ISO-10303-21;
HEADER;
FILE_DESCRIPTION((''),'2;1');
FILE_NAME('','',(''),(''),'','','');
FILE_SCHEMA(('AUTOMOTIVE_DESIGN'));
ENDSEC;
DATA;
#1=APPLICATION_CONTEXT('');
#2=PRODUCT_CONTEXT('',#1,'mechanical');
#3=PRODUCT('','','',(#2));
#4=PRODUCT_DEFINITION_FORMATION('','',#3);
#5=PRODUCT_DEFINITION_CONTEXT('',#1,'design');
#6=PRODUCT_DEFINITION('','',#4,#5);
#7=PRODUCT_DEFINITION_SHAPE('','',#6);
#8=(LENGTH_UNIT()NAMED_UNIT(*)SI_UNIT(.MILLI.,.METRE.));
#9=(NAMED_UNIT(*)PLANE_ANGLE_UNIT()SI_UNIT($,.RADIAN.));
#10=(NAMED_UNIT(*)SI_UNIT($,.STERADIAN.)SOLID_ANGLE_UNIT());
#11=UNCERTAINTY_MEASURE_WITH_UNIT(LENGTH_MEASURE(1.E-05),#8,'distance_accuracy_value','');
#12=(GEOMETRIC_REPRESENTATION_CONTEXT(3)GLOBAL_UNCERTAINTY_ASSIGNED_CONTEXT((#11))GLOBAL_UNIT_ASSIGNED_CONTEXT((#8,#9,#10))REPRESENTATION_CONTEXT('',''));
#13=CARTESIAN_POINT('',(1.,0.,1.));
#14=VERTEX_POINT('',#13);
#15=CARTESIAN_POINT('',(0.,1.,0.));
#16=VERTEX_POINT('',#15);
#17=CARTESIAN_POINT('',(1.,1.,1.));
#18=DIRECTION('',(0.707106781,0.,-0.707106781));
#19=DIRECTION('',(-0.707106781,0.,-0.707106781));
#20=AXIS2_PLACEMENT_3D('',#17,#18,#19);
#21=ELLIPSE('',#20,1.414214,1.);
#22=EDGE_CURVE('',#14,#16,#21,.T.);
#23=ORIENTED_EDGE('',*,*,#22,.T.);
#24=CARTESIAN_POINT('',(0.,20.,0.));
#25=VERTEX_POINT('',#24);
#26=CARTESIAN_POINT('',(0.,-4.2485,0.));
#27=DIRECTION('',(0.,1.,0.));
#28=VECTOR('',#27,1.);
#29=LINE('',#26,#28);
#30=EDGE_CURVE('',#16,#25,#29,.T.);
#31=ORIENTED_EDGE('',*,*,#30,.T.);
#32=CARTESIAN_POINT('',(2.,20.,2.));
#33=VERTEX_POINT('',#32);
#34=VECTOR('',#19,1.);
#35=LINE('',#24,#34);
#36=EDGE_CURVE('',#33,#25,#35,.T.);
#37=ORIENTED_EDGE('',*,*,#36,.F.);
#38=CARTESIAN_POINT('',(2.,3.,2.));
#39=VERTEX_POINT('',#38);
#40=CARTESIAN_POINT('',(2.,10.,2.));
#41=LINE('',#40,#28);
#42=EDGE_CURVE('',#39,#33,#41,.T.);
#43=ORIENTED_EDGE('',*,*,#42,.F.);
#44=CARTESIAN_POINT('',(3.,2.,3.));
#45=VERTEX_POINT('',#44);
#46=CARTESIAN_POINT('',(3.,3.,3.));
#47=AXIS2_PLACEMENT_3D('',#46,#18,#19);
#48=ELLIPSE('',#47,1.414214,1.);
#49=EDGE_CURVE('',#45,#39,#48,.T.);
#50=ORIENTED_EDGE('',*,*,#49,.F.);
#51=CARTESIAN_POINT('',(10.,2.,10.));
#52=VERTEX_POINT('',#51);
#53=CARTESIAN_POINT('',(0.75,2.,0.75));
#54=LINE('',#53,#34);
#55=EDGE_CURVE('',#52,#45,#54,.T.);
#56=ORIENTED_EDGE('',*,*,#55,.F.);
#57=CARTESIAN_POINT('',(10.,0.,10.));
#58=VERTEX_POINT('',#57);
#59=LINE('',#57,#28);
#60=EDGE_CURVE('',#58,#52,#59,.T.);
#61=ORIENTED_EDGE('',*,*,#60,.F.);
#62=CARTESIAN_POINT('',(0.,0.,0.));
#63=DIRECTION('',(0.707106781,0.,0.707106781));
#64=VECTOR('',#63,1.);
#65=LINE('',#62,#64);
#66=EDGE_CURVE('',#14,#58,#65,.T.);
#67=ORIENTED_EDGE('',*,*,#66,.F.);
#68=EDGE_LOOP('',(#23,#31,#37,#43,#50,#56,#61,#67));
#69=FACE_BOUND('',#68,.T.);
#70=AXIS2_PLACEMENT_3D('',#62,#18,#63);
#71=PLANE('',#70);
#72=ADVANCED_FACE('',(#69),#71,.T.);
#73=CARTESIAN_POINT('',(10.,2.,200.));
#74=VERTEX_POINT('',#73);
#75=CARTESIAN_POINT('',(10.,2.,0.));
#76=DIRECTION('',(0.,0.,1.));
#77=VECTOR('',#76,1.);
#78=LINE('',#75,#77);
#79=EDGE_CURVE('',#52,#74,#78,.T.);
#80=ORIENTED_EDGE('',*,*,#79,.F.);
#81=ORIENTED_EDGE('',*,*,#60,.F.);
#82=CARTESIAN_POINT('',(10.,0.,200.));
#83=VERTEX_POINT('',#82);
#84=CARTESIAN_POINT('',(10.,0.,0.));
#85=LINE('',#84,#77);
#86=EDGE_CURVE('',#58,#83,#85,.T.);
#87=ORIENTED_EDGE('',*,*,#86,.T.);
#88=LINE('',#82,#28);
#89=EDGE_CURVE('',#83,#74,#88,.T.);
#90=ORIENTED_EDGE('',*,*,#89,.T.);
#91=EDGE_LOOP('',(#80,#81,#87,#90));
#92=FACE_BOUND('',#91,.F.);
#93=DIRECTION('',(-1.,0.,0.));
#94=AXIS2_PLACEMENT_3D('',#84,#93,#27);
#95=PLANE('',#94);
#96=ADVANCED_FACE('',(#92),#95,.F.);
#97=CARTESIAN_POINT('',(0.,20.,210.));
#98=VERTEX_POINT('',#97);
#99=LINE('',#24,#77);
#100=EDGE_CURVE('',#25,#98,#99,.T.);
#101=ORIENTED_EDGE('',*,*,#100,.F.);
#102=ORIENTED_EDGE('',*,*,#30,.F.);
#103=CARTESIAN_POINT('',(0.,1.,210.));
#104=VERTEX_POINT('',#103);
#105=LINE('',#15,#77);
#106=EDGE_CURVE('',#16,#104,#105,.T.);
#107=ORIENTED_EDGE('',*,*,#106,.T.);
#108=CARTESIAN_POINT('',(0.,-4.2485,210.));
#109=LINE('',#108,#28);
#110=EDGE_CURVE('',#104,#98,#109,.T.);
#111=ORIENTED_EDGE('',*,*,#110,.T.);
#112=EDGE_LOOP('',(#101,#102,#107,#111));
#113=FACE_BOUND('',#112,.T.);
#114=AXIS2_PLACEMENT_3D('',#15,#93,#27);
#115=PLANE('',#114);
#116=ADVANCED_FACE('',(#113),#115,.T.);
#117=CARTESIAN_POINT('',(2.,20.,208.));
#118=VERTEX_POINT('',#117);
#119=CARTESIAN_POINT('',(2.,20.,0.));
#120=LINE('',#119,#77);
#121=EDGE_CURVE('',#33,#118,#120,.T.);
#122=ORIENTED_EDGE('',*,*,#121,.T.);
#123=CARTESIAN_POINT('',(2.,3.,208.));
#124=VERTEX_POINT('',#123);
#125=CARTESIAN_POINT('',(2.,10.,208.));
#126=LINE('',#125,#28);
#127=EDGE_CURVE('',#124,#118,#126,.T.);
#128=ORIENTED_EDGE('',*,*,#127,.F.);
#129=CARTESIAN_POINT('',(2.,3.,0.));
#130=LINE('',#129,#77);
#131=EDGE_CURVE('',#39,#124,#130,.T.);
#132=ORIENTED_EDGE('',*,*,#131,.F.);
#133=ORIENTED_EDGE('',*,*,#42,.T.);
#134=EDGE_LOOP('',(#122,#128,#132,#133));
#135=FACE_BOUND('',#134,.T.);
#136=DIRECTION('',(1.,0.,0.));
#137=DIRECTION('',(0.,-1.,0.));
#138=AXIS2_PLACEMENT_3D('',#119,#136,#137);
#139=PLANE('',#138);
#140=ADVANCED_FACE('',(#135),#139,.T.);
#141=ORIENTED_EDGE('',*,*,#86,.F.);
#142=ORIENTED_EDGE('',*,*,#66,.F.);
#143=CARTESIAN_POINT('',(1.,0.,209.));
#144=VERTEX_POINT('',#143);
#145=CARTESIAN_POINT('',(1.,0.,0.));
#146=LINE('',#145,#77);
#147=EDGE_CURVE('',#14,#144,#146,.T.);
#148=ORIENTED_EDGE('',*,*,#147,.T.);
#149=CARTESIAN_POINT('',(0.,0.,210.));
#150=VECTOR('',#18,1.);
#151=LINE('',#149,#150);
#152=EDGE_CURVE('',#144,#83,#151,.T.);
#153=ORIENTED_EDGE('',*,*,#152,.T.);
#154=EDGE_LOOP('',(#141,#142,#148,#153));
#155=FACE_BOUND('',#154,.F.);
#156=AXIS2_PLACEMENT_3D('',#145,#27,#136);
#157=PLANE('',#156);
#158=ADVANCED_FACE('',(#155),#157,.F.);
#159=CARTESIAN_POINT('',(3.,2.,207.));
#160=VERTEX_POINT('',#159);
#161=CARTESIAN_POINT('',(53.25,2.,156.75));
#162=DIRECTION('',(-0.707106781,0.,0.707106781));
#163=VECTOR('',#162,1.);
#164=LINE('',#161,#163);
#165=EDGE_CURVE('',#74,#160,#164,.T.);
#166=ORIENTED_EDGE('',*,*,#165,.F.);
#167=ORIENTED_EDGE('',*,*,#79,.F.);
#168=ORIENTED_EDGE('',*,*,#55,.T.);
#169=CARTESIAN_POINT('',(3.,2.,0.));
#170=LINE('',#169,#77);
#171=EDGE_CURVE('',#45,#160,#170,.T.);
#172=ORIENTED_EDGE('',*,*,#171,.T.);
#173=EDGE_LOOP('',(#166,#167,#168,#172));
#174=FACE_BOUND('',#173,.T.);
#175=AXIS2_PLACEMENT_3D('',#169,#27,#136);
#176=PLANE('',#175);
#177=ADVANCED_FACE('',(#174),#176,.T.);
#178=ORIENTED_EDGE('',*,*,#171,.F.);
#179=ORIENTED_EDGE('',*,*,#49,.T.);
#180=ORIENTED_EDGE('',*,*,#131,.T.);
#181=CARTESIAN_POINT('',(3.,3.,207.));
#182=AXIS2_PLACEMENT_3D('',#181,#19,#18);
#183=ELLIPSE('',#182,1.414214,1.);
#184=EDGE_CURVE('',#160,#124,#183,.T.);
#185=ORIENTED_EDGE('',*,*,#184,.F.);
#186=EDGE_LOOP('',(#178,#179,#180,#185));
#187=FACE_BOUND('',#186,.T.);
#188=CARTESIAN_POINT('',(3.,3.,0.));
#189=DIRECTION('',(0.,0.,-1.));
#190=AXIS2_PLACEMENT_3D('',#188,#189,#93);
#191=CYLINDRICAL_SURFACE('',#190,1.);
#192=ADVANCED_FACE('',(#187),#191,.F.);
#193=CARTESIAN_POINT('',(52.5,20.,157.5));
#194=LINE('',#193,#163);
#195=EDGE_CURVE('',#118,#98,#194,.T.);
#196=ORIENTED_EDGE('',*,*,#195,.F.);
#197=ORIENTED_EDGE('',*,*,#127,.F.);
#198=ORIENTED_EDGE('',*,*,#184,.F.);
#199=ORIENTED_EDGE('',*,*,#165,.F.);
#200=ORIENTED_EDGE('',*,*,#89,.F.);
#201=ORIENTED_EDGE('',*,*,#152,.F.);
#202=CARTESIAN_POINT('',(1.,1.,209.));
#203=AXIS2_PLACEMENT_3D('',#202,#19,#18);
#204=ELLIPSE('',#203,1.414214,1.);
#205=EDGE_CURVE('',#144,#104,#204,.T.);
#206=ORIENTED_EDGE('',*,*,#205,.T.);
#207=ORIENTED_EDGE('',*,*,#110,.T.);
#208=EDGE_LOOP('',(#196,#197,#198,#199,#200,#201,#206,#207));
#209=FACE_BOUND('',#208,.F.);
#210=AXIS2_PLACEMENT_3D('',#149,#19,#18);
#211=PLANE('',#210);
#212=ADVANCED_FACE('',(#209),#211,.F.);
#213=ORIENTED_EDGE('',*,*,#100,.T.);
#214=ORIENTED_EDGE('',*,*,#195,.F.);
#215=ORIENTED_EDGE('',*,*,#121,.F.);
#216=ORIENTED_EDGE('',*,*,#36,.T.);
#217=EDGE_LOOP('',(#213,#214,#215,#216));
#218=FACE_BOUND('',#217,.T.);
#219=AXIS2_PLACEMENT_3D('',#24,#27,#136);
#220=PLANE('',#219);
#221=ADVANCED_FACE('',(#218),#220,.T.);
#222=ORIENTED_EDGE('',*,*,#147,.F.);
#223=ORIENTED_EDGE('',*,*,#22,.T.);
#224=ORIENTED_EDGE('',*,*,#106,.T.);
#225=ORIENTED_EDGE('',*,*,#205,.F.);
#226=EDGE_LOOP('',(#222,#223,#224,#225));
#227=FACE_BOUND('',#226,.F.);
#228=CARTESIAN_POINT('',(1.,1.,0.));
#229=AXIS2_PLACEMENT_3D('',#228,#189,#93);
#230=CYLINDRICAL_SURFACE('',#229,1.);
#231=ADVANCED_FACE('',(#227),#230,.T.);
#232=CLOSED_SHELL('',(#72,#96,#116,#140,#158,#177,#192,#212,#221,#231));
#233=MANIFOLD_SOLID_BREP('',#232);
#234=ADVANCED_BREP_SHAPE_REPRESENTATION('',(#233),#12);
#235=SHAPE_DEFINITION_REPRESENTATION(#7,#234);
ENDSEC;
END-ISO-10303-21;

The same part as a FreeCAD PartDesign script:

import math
import FreeCAD as App
import Part
import Sketcher

V = App.Vector


def add_polygon(sketch, points):
    """Adds a closed chain of lines whose ends are joined by coincident constraints."""
    first, n = sketch.GeometryCount, len(points)
    for a, b in zip(points, points[1:] + points[:1]):
        sketch.addGeometry(Part.LineSegment(App.Vector(*a, 0), App.Vector(*b, 0)), False)
    for i in range(n):
        sketch.addConstraint(Sketcher.Constraint("Coincident", first + i, 2, first + (i + 1) % n, 1))

doc = App.newDocument("Part")
body = doc.addObject("PartDesign::Body", "Body")

sketch1 = body.newObject("Sketcher::SketchObject", "Sketch")
sketch1.AttachmentSupport = (doc.getObject("XY_Plane"), [""])
sketch1.MapMode = "FlatFace"
sketch1.addGeometry([
    Part.ArcOfCircle(Part.Circle(V(1, 1, 0), V(0, 0, 1), 1), math.radians(180), math.radians(270)),
    Part.LineSegment(V(1, 0, 0), V(10, 0, 0)),
    Part.LineSegment(V(10, 0, 0), V(10, 2, 0)),
    Part.LineSegment(V(10, 2, 0), V(3, 2, 0)),
    Part.ArcOfCircle(Part.Circle(V(3, 3, 0), V(0, 0, 1), 1), math.radians(180), math.radians(270)),
    Part.LineSegment(V(2, 3, 0), V(2, 20, 0)),
    Part.LineSegment(V(2, 20, 0), V(0, 20, 0)),
    Part.LineSegment(V(0, 20, 0), V(0, 1, 0)),
], False)
sketch1.addConstraint([
    Sketcher.Constraint("Tangent", 0, 2, 1, 1),
    Sketcher.Constraint("Coincident", 1, 2, 2, 1),
    Sketcher.Constraint("Coincident", 2, 2, 3, 1),
    Sketcher.Constraint("Tangent", 3, 2, 4, 2),
    Sketcher.Constraint("Tangent", 4, 1, 5, 1),
    Sketcher.Constraint("Coincident", 5, 2, 6, 1),
    Sketcher.Constraint("Coincident", 6, 2, 7, 1),
    Sketcher.Constraint("Tangent", 7, 2, 0, 1),
    Sketcher.Constraint("Horizontal", 1),
    Sketcher.Constraint("Vertical", 2),
    Sketcher.Constraint("Horizontal", 3),
    Sketcher.Constraint("Vertical", 5),
    Sketcher.Constraint("Horizontal", 6),
    Sketcher.Constraint("Vertical", 7),
    Sketcher.Constraint("Equal", 0, 4),
    Sketcher.Constraint("PointOnObject", 0, 2, -1),
    Sketcher.Constraint("PointOnObject", 6, 2, -2),
    Sketcher.Constraint("Equal", 6, 2),
    Sketcher.Constraint("Radius", 0, 1.0),
    Sketcher.Constraint("DistanceX", 6, 2, 6, 1, 2.0),
    Sketcher.Constraint("DistanceX", -1, 1, 1, 2, 10.0),
    Sketcher.Constraint("DistanceY", -1, 1, 5, 2, 20.0),
])
pad1 = body.newObject("PartDesign::Pad", "Pad")
pad1.Profile = sketch1
pad1.Length = 210

sketch2 = body.newObject("Sketcher::SketchObject", "Sketch001")
sketch2.AttachmentSupport = (doc.getObject("XZ_Plane"), [""])
sketch2.MapMode = "FlatFace"
add_polygon(sketch2, [(0, 0), (10, 0), (10, 10)])
add_polygon(sketch2, [(10, 210), (0, 210), (10, 200)])
sketch2.addConstraint([
    Sketcher.Constraint("Horizontal", 0),
    Sketcher.Constraint("Vertical", 1),
    Sketcher.Constraint("Horizontal", 3),
    Sketcher.Constraint("Vertical", 5),
    Sketcher.Constraint("Coincident", 2, 2, -1, 1),
    Sketcher.Constraint("PointOnObject", 3, 2, -2),
    Sketcher.Constraint("Perpendicular", 2, 4),
    Sketcher.Constraint("Vertical", 1, 2, 4, 2),
    Sketcher.Constraint("Equal", 3, 1),
    Sketcher.Constraint("DistanceX", 0, 1, 0, 2, 10.0),
    Sketcher.Constraint("DistanceY", -1, 1, 3, 2, 210.0),
])
pocket1 = body.newObject("PartDesign::Pocket", "Pocket")
pocket1.Profile = sketch2
pocket1.Type = "ThroughAll"

doc.recompute()
